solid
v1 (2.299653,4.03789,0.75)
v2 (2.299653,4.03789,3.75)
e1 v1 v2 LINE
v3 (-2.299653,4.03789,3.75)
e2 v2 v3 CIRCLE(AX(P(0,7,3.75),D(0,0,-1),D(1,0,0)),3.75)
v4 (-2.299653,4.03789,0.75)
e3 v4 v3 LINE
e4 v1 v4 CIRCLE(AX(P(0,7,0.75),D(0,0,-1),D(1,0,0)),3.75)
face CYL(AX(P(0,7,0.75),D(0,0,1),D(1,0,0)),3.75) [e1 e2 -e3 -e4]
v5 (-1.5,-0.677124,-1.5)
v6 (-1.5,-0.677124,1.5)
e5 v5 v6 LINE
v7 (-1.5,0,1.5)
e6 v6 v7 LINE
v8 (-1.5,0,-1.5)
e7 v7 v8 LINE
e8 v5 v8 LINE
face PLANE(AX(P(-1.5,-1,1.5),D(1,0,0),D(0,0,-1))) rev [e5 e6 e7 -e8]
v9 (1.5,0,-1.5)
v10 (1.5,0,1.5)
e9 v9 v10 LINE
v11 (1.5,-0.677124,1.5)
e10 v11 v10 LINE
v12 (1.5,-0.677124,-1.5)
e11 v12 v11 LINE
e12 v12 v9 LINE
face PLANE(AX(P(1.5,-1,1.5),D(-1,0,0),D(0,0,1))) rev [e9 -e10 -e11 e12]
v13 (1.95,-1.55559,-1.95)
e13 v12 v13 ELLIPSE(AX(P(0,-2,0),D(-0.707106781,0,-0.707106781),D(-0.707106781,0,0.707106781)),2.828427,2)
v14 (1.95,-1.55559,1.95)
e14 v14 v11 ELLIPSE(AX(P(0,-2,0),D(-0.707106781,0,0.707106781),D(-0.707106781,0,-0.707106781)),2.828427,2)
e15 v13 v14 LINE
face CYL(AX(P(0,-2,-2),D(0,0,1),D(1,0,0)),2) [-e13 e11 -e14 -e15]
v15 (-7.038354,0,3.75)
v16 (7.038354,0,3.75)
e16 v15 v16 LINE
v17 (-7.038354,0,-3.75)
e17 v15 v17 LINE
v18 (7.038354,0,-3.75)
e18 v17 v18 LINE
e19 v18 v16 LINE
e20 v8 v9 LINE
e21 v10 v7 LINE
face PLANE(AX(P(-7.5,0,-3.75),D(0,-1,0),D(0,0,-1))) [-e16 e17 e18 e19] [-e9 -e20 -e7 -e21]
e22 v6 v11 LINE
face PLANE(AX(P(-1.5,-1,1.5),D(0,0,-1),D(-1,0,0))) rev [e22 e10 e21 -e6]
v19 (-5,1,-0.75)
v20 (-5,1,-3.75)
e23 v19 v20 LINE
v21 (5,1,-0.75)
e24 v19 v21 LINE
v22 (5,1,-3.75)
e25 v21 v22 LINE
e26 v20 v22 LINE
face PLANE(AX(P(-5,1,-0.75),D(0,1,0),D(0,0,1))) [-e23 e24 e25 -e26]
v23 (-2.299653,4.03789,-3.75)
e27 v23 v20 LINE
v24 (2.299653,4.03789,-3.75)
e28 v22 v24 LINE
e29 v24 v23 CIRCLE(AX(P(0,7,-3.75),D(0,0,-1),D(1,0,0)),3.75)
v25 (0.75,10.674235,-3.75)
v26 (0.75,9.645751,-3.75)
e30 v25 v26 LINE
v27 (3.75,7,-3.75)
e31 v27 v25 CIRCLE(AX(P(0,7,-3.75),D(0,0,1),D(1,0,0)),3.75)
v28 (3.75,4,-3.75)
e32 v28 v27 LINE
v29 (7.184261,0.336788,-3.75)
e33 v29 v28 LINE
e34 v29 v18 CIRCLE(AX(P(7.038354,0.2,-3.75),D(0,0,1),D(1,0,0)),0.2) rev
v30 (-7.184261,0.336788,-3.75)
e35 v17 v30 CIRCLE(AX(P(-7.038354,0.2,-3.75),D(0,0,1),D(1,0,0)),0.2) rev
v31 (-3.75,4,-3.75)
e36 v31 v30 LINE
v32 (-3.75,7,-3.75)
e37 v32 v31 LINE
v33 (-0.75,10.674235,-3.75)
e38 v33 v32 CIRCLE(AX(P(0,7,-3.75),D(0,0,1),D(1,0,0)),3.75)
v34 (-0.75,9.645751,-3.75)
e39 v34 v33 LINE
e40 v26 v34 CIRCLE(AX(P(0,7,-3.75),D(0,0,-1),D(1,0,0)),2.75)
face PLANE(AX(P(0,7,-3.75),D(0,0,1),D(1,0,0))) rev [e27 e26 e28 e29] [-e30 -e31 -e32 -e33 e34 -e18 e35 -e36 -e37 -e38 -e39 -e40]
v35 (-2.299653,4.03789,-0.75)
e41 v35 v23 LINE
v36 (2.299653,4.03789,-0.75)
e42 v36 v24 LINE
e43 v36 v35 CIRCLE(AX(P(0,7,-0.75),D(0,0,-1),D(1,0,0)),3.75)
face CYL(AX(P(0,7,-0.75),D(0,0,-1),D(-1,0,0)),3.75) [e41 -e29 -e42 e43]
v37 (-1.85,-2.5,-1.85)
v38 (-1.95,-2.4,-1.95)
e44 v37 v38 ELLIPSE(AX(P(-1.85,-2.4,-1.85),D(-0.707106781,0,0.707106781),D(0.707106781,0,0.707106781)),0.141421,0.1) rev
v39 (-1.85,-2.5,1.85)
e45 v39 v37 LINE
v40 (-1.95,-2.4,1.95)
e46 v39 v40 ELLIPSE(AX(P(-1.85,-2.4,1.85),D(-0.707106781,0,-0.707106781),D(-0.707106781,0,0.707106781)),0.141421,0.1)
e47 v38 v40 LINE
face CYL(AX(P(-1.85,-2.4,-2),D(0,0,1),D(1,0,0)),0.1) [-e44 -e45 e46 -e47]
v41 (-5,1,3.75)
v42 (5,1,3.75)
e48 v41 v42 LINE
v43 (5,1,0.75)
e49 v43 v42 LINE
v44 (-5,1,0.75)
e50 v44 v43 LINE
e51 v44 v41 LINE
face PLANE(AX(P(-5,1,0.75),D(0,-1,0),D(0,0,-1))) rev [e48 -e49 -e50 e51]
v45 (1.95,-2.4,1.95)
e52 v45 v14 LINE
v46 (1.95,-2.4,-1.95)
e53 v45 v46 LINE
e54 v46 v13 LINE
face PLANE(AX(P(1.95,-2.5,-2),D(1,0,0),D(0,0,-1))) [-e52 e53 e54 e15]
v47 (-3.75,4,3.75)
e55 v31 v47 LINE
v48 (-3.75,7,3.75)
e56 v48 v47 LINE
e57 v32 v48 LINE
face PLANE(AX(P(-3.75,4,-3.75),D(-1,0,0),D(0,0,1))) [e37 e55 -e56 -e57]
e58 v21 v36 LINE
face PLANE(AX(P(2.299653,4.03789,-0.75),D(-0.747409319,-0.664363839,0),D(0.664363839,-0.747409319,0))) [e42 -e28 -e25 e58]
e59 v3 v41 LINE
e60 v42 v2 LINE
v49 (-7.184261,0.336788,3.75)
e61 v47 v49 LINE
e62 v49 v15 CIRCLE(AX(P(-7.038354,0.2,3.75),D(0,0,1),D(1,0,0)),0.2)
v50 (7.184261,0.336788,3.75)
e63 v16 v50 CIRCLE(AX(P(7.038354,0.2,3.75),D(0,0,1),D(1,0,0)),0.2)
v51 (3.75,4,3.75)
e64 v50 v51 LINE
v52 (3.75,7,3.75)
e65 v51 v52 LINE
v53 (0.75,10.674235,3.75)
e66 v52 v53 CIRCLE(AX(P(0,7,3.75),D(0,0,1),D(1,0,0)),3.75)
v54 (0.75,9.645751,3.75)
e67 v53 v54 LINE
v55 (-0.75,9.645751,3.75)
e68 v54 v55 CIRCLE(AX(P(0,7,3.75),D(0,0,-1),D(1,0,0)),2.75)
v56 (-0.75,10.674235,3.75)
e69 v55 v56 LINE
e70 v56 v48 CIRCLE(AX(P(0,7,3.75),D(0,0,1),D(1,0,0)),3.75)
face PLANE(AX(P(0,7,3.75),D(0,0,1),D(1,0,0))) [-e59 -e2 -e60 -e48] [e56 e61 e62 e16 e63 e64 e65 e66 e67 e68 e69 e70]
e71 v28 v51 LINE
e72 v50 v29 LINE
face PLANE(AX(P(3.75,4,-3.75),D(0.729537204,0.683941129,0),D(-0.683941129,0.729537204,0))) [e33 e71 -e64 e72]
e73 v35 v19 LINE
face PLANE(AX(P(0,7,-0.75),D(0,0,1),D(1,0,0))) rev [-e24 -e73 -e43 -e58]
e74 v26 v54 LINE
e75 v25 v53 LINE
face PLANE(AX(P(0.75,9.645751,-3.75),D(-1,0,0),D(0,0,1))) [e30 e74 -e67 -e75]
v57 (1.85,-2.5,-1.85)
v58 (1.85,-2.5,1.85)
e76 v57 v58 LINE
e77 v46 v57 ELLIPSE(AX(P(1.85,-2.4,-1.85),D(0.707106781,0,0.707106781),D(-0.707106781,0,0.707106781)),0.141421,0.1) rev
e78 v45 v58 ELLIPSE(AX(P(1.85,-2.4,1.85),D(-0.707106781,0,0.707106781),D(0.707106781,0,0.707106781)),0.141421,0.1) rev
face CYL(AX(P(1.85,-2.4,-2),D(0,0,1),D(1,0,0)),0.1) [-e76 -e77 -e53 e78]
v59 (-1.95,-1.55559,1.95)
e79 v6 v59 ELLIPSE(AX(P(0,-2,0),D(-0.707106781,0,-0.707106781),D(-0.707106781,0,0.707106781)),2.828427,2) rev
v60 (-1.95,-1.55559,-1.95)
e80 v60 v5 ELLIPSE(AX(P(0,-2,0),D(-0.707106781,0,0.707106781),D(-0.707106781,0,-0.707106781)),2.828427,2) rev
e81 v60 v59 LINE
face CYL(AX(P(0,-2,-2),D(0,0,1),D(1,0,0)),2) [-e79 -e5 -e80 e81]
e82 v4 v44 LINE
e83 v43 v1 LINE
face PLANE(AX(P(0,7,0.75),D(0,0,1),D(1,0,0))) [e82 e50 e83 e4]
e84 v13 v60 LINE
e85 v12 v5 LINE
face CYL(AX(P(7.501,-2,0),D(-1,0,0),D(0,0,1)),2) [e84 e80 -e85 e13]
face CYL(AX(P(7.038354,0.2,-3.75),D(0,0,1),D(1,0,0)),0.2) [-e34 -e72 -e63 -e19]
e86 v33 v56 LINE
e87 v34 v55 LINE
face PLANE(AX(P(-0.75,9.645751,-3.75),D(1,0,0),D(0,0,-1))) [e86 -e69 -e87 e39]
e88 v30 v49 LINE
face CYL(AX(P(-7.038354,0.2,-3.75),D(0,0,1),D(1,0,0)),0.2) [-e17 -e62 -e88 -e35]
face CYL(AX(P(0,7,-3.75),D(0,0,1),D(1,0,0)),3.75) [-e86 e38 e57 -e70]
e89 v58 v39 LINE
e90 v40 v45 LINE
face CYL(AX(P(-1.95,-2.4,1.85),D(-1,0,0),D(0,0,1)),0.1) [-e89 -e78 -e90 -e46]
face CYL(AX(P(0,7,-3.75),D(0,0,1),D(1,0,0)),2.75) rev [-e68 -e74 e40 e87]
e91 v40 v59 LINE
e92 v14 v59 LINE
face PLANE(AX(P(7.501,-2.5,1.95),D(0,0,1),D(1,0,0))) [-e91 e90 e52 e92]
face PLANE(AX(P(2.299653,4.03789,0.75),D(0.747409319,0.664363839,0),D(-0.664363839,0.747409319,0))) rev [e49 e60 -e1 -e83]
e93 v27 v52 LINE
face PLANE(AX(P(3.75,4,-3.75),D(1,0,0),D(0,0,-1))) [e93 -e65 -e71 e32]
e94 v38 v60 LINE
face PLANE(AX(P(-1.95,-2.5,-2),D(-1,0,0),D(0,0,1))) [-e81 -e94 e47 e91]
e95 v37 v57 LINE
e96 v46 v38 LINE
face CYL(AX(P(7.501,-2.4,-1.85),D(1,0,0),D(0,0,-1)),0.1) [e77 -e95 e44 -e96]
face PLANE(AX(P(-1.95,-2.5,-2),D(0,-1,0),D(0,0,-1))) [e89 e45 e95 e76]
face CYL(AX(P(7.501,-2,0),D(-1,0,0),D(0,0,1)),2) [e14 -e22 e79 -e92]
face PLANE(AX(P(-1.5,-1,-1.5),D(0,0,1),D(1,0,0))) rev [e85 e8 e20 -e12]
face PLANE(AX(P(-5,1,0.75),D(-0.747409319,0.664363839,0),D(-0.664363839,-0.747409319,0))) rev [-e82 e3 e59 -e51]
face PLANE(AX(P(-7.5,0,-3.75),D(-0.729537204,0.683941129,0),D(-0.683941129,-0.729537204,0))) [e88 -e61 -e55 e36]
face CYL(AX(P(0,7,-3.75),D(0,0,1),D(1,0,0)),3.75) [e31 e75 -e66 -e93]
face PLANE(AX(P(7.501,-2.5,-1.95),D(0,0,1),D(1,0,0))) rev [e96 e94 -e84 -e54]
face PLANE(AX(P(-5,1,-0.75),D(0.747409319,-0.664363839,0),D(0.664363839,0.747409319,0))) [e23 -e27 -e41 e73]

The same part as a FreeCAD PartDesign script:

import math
import FreeCAD as App
import Part
import Sketcher

V = App.Vector


def edges_at(feature, points):
    """Names of the edges that pass closest to the given points."""
    edges = feature.Shape.Edges
    near = lambda p: min(range(len(edges)), key=lambda i: edges[i].distToShape(Part.Vertex(*p))[0])
    return sorted({f"Edge{near(p) + 1}" for p in points})


def add_polygon(sketch, points):
    """Adds a closed chain of lines whose ends are joined by coincident constraints."""
    first, n = sketch.GeometryCount, len(points)
    for a, b in zip(points, points[1:] + points[:1]):
        sketch.addGeometry(Part.LineSegment(App.Vector(*a, 0), App.Vector(*b, 0)), False)
    for i in range(n):
        sketch.addConstraint(Sketcher.Constraint("Coincident", first + i, 2, first + (i + 1) % n, 1))

doc = App.newDocument("Part")
body = doc.addObject("PartDesign::Body", "Body")

# Sketch on XY plane
sketch1 = doc.addObject("Sketcher::SketchObject", "Sketch")
body.addObject(sketch1)
sketch1.AttachmentSupport = (doc.XY_Plane, [""])
sketch1.MapMode = "FlatFace"
sketch1.addGeometry(Part.LineSegment(V(-7.5, 0, 0), V(7.5, 0, 0)), False)
sketch1.addGeometry(Part.LineSegment(V(7.5, 0, 0), V(3.8, 4, 0)), False)
sketch1.addGeometry(Part.LineSegment(V(3.8, 4, 0), V(3.8, 7, 0)), False)
sketch1.addGeometry(Part.ArcOfCircle(Part.Circle(V(0, 7, 0), V(0, 0, 1), 3.7), math.radians(0), math.radians(78)), False)
sketch1.addGeometry(Part.LineSegment(V(0.8, 10.7, 0), V(0.8, 9.6, 0)), False)
sketch1.addGeometry(Part.ArcOfCircle(Part.Circle(V(0, 7, 0), V(0, 0, 1), 2.8), math.radians(106), math.radians(434)), False)
sketch1.addGeometry(Part.LineSegment(V(-0.8, 9.6, 0), V(-0.8, 10.7, 0)), False)
sketch1.addGeometry(Part.ArcOfCircle(Part.Circle(V(0, 7, 0), V(0, 0, 1), 3.7), math.radians(102), math.radians(180)), False)
sketch1.addGeometry(Part.LineSegment(V(-3.8, 7, 0), V(-3.8, 4, 0)), False)
sketch1.addGeometry(Part.LineSegment(V(-3.8, 4, 0), V(-7.5, 0, 0)), False)
sketch1.addConstraint(Sketcher.Constraint("Coincident", 0, 2, 1, 1))
sketch1.addConstraint(Sketcher.Constraint("Coincident", 1, 2, 2, 1))
sketch1.addConstraint(Sketcher.Constraint("Tangent", 2, 2, 3, 1))
sketch1.addConstraint(Sketcher.Constraint("Coincident", 3, 2, 4, 1))
sketch1.addConstraint(Sketcher.Constraint("Coincident", 4, 2, 5, 2))
sketch1.addConstraint(Sketcher.Constraint("Coincident", 5, 1, 6, 1))
sketch1.addConstraint(Sketcher.Constraint("Coincident", 6, 2, 7, 1))
sketch1.addConstraint(Sketcher.Constraint("Tangent", 7, 2, 8, 1))
sketch1.addConstraint(Sketcher.Constraint("Coincident", 8, 2, 9, 1))
sketch1.addConstraint(Sketcher.Constraint("Coincident", 9, 2, 0, 1))
sketch1.addConstraint(Sketcher.Constraint("Horizontal", 0))
sketch1.addConstraint(Sketcher.Constraint("Vertical", 2))
sketch1.addConstraint(Sketcher.Constraint("Vertical", 4))
sketch1.addConstraint(Sketcher.Constraint("Vertical", 6))
sketch1.addConstraint(Sketcher.Constraint("Vertical", 8))
sketch1.addConstraint(Sketcher.Constraint("Coincident", 5, 3, 3, 3))
sketch1.addConstraint(Sketcher.Constraint("Coincident", 7, 3, 3, 3))
sketch1.addConstraint(Sketcher.Constraint("Equal", 3, 7))
sketch1.addConstraint(Sketcher.Constraint("Symmetric", 0, 2, 9, 2, -1, 1))
sketch1.addConstraint(Sketcher.Constraint("Symmetric", 4, 2, 5, 1, -2))
sketch1.addConstraint(Sketcher.Constraint("Horizontal", 1, 2, 8, 2))
sketch1.addConstraint(Sketcher.Constraint("DistanceX", 0, 1, 0, 2, 15.0))
sketch1.addConstraint(Sketcher.Constraint("DistanceY", 2, 1, 2, 2, 3.0))
sketch1.addConstraint(Sketcher.Constraint("Radius", 3, 3.75))
sketch1.addConstraint(Sketcher.Constraint("Radius", 5, 2.75))
sketch1.addConstraint(Sketcher.Constraint("DistanceY", -1, 1, 3, 3, 7.0))
sketch1.addConstraint(Sketcher.Constraint("DistanceX", 3, 2, 2, 2, 3.0))
pad1 = doc.addObject("PartDesign::Pad", "Pad")
body.addObject(pad1)
pad1.Profile = sketch1
pad1.Type = "TwoLengths"
pad1.Length = 3.75
pad1.Length2 = 3.75

# Sketch on XZ plane
sketch2 = doc.addObject("Sketcher::SketchObject", "Sketch001")
body.addObject(sketch2)
sketch2.AttachmentSupport = (doc.XZ_Plane, [""])
sketch2.MapMode = "FlatFace"
add_polygon(sketch2, [(-1.5, 1.5), (-1.5, -1.5), (1.5, -1.5), (1.5, 1.5)])  # lines 0-3
sketch2.addConstraint(Sketcher.Constraint("Vertical", 0))
sketch2.addConstraint(Sketcher.Constraint("Horizontal", 1))
sketch2.addConstraint(Sketcher.Constraint("Vertical", 2))
sketch2.addConstraint(Sketcher.Constraint("Horizontal", 3))
sketch2.addConstraint(Sketcher.Constraint("Symmetric", 0, 2, 2, 2, -1, 1))
sketch2.addConstraint(Sketcher.Constraint("Equal", 3, 0))
sketch2.addConstraint(Sketcher.Constraint("DistanceX", 1, 1, 1, 2, 3.0))
pad2 = doc.addObject("PartDesign::Pad", "Pad001")
body.addObject(pad2)
pad2.Profile = sketch2
pad2.Length = 1

# Sketch on XY plane
sketch3 = doc.addObject("Sketcher::SketchObject", "Sketch002")
body.addObject(sketch3)
sketch3.AttachmentSupport = (doc.XY_Plane, [""])
sketch3.MapMode = "FlatFace"
sketch3.addGeometry(Part.LineSegment(V(-1.9, -2.5, 0), V(1.9, -2.5, 0)), False)
sketch3.addGeometry(Part.LineSegment(V(1.9, -2.5, 0), V(1.9, -1.6, 0)), False)
sketch3.addGeometry(Part.ArcOfCircle(Part.Circle(V(0, -2, 0), V(0, 0, 1), 2), math.radians(13), math.radians(41)), False)
sketch3.addGeometry(Part.LineSegment(V(1.5, -0.7, 0), V(-1.5, -0.7, 0)), False)
sketch3.addGeometry(Part.ArcOfCircle(Part.Circle(V(0, -2, 0), V(0, 0, 1), 2), math.radians(139), math.radians(167)), False)
sketch3.addGeometry(Part.LineSegment(V(-1.9, -1.6, 0), V(-1.9, -2.5, 0)), False)
sketch3.addConstraint(Sketcher.Constraint("Coincident", 0, 2, 1, 1))
sketch3.addConstraint(Sketcher.Constraint("Coincident", 1, 2, 2, 1))
sketch3.addConstraint(Sketcher.Constraint("Coincident", 2, 2, 3, 1))
sketch3.addConstraint(Sketcher.Constraint("Coincident", 3, 2, 4, 1))
sketch3.addConstraint(Sketcher.Constraint("Coincident", 4, 2, 5, 1))
sketch3.addConstraint(Sketcher.Constraint("Coincident", 5, 2, 0, 1))
sketch3.addConstraint(Sketcher.Constraint("Horizontal", 0))
sketch3.addConstraint(Sketcher.Constraint("Vertical", 1))
sketch3.addConstraint(Sketcher.Constraint("Horizontal", 3))
sketch3.addConstraint(Sketcher.Constraint("Vertical", 5))
sketch3.addConstraint(Sketcher.Constraint("Coincident", 4, 3, 2, 3))
sketch3.addConstraint(Sketcher.Constraint("Equal", 2, 4))
sketch3.addConstraint(Sketcher.Constraint("Symmetric", 1, 2, 4, 2, -2))
sketch3.addConstraint(Sketcher.Constraint("Radius", 2, 2.0))
sketch3.addConstraint(Sketcher.Constraint("DistanceX", 3, 2, 3, 1, 3.0))
sketch3.addConstraint(Sketcher.Constraint("DistanceX", 0, 1, 0, 2, 3.9))
sketch3.addConstraint(Sketcher.Constraint("DistanceY", 2, 3, -1, 1, 2.0))
sketch3.addConstraint(Sketcher.Constraint("DistanceY", 0, 2, -1, 1, 2.5))
pad3 = doc.addObject("PartDesign::Pad", "Pad002")
body.addObject(pad3)
pad3.Profile = sketch3
pad3.Type = "TwoLengths"
pad3.Length = 2
pad3.Length2 = 2

# Sketch on YZ plane
sketch4 = doc.addObject("Sketcher::SketchObject", "Sketch003")
body.addObject(sketch4)
sketch4.AttachmentSupport = (doc.YZ_Plane, [""])
sketch4.MapMode = "FlatFace"
sketch4.AttachmentOffset = App.Placement(V(0, 0, -1.95), App.Rotation())
sketch4.addGeometry(Part.LineSegment(V(-2.5, -1.95, 0), V(-1.56, -1.95, 0)), False)
sketch4.addGeometry(Part.ArcOfCircle(Part.Circle(V(-2, 0, 0), V(0, 0, 1), 2), math.radians(-77), math.radians(-49)), False)
sketch4.addGeometry(Part.LineSegment(V(-0.68, -1.5, 0), V(-0.68, -2, 0)), False)
sketch4.addGeometry(Part.LineSegment(V(-0.68, -2, 0), V(-2.5, -2, 0)), False)
sketch4.addGeometry(Part.LineSegment(V(-2.5, -2, 0), V(-2.5, -1.95, 0)), False)
sketch4.addConstraint(Sketcher.Constraint("Coincident", 0, 2, 1, 1))
sketch4.addConstraint(Sketcher.Constraint("Coincident", 1, 2, 2, 1))
sketch4.addConstraint(Sketcher.Constraint("Coincident", 2, 2, 3, 1))
sketch4.addConstraint(Sketcher.Constraint("Coincident", 3, 2, 4, 1))
sketch4.addConstraint(Sketcher.Constraint("Coincident", 4, 2, 0, 1))
sketch4.addConstraint(Sketcher.Constraint("Horizontal", 0))
sketch4.addConstraint(Sketcher.Constraint("Vertical", 2))
sketch4.addConstraint(Sketcher.Constraint("Horizontal", 3))
sketch4.addConstraint(Sketcher.Constraint("Vertical", 4))
sketch4.addConstraint(Sketcher.Constraint("PointOnObject", 1, 3, -1))
sketch4.addConstraint(Sketcher.Constraint("Radius", 1, 2.0))
sketch4.addConstraint(Sketcher.Constraint("DistanceY", 2, 2, 2, 1, 0.5))
sketch4.addConstraint(Sketcher.Constraint("DistanceX", 1, 3, -1, 1, 2.0))
sketch4.addConstraint(Sketcher.Constraint("DistanceY", 2, 2, -1, 1, 2.0))
sketch4.addConstraint(Sketcher.Constraint("DistanceY", 4, 1, 4, 2, 0.05))
sketch4.addConstraint(Sketcher.Constraint("DistanceX", 3, 2, -1, 1, 2.5))
pocket1 = doc.addObject("PartDesign::Pocket", "Pocket")
body.addObject(pocket1)
pocket1.Profile = sketch4
pocket1.Length = 3.9
pocket1.Reversed = True

# Sketch on YZ plane
sketch5 = doc.addObject("Sketcher::SketchObject", "Sketch004")
body.addObject(sketch5)
sketch5.AttachmentSupport = (doc.YZ_Plane, [""])
sketch5.MapMode = "FlatFace"
sketch5.AttachmentOffset = App.Placement(V(0, 0, -1.95), App.Rotation())
sketch5.addGeometry(Part.LineSegment(V(-1.56, 1.95, 0), V(-2.5, 1.95, 0)), False)
sketch5.addGeometry(Part.LineSegment(V(-2.5, 1.95, 0), V(-2.5, 2, 0)), False)
sketch5.addGeometry(Part.LineSegment(V(-2.5, 2, 0), V(-0.68, 2, 0)), False)
sketch5.addGeometry(Part.LineSegment(V(-0.68, 2, 0), V(-0.68, 1.5, 0)), False)
sketch5.addGeometry(Part.ArcOfCircle(Part.Circle(V(-2, 0, 0), V(0, 0, 1), 2), math.radians(49), math.radians(77)), False)
sketch5.addConstraint(Sketcher.Constraint("Coincident", 0, 2, 1, 1))
sketch5.addConstraint(Sketcher.Constraint("Coincident", 1, 2, 2, 1))
sketch5.addConstraint(Sketcher.Constraint("Coincident", 2, 2, 3, 1))
sketch5.addConstraint(Sketcher.Constraint("Coincident", 3, 2, 4, 1))
sketch5.addConstraint(Sketcher.Constraint("Coincident", 4, 2, 0, 1))
sketch5.addConstraint(Sketcher.Constraint("Horizontal", 0))
sketch5.addConstraint(Sketcher.Constraint("Vertical", 1))
sketch5.addConstraint(Sketcher.Constraint("Horizontal", 2))
sketch5.addConstraint(Sketcher.Constraint("Vertical", 3))
sketch5.addConstraint(Sketcher.Constraint("PointOnObject", 4, 3, -1))
sketch5.addConstraint(Sketcher.Constraint("Radius", 4, 2.0))
sketch5.addConstraint(Sketcher.Constraint("DistanceY", 3, 2, 3, 1, 0.5))
sketch5.addConstraint(Sketcher.Constraint("DistanceX", 4, 3, -1, 1, 2.0))
sketch5.addConstraint(Sketcher.Constraint("DistanceY", -1, 1, 1, 2, 2.0))
sketch5.addConstraint(Sketcher.Constraint("DistanceY", 1, 1, 1, 2, 0.05))
sketch5.addConstraint(Sketcher.Constraint("DistanceX", 0, 2, -1, 1, 2.5))
pocket2 = doc.addObject("PartDesign::Pocket", "Pocket001")
body.addObject(pocket2)
pocket2.Profile = sketch5
pocket2.Length = 3.9
pocket2.Reversed = True

# Sketch on XY plane
sketch6 = doc.addObject("Sketcher::SketchObject", "Sketch005")
body.addObject(sketch6)
sketch6.AttachmentSupport = (doc.XY_Plane, [""])
sketch6.MapMode = "FlatFace"
sketch6.AttachmentOffset = App.Placement(V(0, 0, 0.75), App.Rotation())
sketch6.addGeometry(Part.LineSegment(V(-5, 1, 0), V(5, 1, 0)), False)
sketch6.addGeometry(Part.LineSegment(V(5, 1, 0), V(2.3, 4, 0)), False)
sketch6.addGeometry(Part.ArcOfCircle(Part.Circle(V(0, 7, 0), V(0, 0, 1), 3.8), math.radians(-128), math.radians(-52)), False)
sketch6.addGeometry(Part.LineSegment(V(-2.3, 4, 0), V(-5, 1, 0)), False)
sketch6.addConstraint(Sketcher.Constraint("Coincident", 0, 2, 1, 1))
sketch6.addConstraint(Sketcher.Constraint("Coincident", 1, 2, 2, 2))
sketch6.addConstraint(Sketcher.Constraint("Coincident", 2, 1, 3, 1))
sketch6.addConstraint(Sketcher.Constraint("Coincident", 3, 2, 0, 1))
sketch6.addConstraint(Sketcher.Constraint("Horizontal", 0))
sketch6.addConstraint(Sketcher.Constraint("Symmetric", 1, 2, 2, 1, -2))
sketch6.addConstraint(Sketcher.Constraint("Equal", 1, 3))
sketch6.addConstraint(Sketcher.Constraint("DistanceX", 0, 1, 0, 2, 10.0))
sketch6.addConstraint(Sketcher.Constraint("Radius", 2, 3.75))
sketch6.addConstraint(Sketcher.Constraint("DistanceY", -1, 1, 2, 3, 7.0))
sketch6.addConstraint(Sketcher.Constraint("DistanceY", -1, 1, 0, 2, 1.0))
sketch6.addConstraint(Sketcher.Constraint("Distance", 1, 4.06456))
pocket3 = doc.addObject("PartDesign::Pocket", "Pocket002")
body.addObject(pocket3)
pocket3.Profile = sketch6
pocket3.Length = 3
pocket3.Reversed = True

# Sketch on XY plane
sketch7 = doc.addObject("Sketcher::SketchObject", "Sketch006")
body.addObject(sketch7)
sketch7.AttachmentSupport = (doc.XY_Plane, [""])
sketch7.MapMode = "FlatFace"
sketch7.AttachmentOffset = App.Placement(V(0, 0, -3.75), App.Rotation())
sketch7.addGeometry(Part.LineSegment(V(-5, 1, 0), V(5, 1, 0)), False)
sketch7.addGeometry(Part.LineSegment(V(5, 1, 0), V(2.3, 4, 0)), False)
sketch7.addGeometry(Part.ArcOfCircle(Part.Circle(V(0, 7, 0), V(0, 0, 1), 3.8), math.radians(-128), math.radians(-52)), False)
sketch7.addGeometry(Part.LineSegment(V(-2.3, 4, 0), V(-5, 1, 0)), False)
sketch7.addConstraint(Sketcher.Constraint("Coincident", 0, 2, 1, 1))
sketch7.addConstraint(Sketcher.Constraint("Coincident", 1, 2, 2, 2))
sketch7.addConstraint(Sketcher.Constraint("Coincident", 2, 1, 3, 1))
sketch7.addConstraint(Sketcher.Constraint("Coincident", 3, 2, 0, 1))
sketch7.addConstraint(Sketcher.Constraint("Horizontal", 0))
sketch7.addConstraint(Sketcher.Constraint("Symmetric", 1, 2, 2, 1, -2))
sketch7.addConstraint(Sketcher.Constraint("Equal", 1, 3))
sketch7.addConstraint(Sketcher.Constraint("DistanceX", 0, 1, 0, 2, 10.0))
sketch7.addConstraint(Sketcher.Constraint("Radius", 2, 3.75))
sketch7.addConstraint(Sketcher.Constraint("DistanceY", -1, 1, 2, 3, 7.0))
sketch7.addConstraint(Sketcher.Constraint("DistanceY", -1, 1, 0, 2, 1.0))
sketch7.addConstraint(Sketcher.Constraint("Distance", 1, 4.06456))
pocket4 = doc.addObject("PartDesign::Pocket", "Pocket003")
body.addObject(pocket4)
pocket4.Profile = sketch7
pocket4.Length = 3
pocket4.Reversed = True
doc.recompute()

fillet = doc.addObject("PartDesign::Fillet", "Fillet")
body.addObject(fillet)
fillet.Base = (pocket4, edges_at(pocket4, [(7.5, 0, 0), (-7.5, 0, 0)]))
fillet.Radius = 0.2
doc.recompute()

fillet2 = doc.addObject("PartDesign::Fillet", "Fillet001")
body.addObject(fillet2)
fillet2.Base = (fillet, edges_at(fillet, [
    (0, -2.5, 1.95),
    (-1.95, -2.5, 0),
    (1.95, -2.5, 0),
    (0, -2.5, -1.95),
]))
fillet2.Radius = 0.1

doc.recompute()
